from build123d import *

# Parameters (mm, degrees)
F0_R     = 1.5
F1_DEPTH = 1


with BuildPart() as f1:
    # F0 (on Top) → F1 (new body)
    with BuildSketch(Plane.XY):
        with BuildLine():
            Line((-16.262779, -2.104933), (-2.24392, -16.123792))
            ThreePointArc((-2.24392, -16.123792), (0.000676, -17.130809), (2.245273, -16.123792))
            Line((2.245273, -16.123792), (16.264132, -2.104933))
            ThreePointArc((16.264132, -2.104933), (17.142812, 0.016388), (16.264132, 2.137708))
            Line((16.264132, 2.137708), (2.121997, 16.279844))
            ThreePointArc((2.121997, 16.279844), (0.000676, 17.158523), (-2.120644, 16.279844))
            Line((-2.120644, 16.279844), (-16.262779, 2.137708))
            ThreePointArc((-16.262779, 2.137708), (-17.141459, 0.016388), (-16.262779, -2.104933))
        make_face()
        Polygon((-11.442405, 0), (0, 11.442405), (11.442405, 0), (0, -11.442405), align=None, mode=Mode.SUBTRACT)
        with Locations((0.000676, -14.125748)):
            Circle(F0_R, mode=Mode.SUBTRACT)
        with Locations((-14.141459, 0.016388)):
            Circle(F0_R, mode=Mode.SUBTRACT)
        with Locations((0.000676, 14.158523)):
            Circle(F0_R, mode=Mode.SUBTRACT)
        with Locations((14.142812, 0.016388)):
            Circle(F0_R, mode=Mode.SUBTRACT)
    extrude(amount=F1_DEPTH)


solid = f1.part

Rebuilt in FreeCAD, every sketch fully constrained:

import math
import FreeCAD as App
import Part
import Sketcher
from FreeCAD import Vector

doc = App.newDocument("Part")
body = doc.addObject("PartDesign::Body", "Body")

# Sketch on XY plane
sketch1 = body.newObject("Sketcher::SketchObject", "Sketch")
sketch1.AttachmentSupport = (doc.getObject("XY_Plane"), [""])
sketch1.MapMode = "FlatFace"
sketch1.addGeometry([
    Part.LineSegment(Vector(-16.262779, -2.104933, 0), Vector(-2.24392, -16.123792, 0)),  # 0
    Part.ArcOfCircle(Part.Circle(Vector(0.000677, -14.125747, 0), Vector(0, 0, 1), 3.005062), math.radians(-138.325876), math.radians(-41.674124)),  # 1
    Part.LineSegment(Vector(2.245273, -16.123792, 0), Vector(16.264132, -2.104933, 0)),  # 2
    Part.ArcOfCircle(Part.Circle(Vector(14.142812, 0.016387, 0), Vector(0, 0, 1), 3), math.radians(-45.000013), math.radians(45.000013)),  # 3
    Part.LineSegment(Vector(16.264132, 2.137708, 0), Vector(2.121997, 16.279844, 0)),  # 4
    Part.ArcOfCircle(Part.Circle(Vector(0.000677, 14.158521, 0), Vector(0, 0, 1), 3.000002), math.radians(45.000033), math.radians(134.999967)),  # 5
    Part.LineSegment(Vector(-2.120644, 16.279844, 0), Vector(-16.262779, 2.137708, 0)),  # 6
    Part.ArcOfCircle(Part.Circle(Vector(-14.141459, 0.016387, 0), Vector(0, 0, 1), 3), math.radians(134.999987), math.radians(225.000013)),  # 7
    Part.Circle(Vector(0.000676, -14.125748, 0), Vector(0, 0, 1), 1.5),  # 8
    Part.LineSegment(Vector(0, -11.442405, 0), Vector(-11.442405, 0, 0)),  # 9
    Part.LineSegment(Vector(-11.442405, 0, 0), Vector(0, 11.442405, 0)),  # 10
    Part.LineSegment(Vector(0, 11.442405, 0), Vector(11.442405, 0, 0)),  # 11
    Part.LineSegment(Vector(11.442405, 0, 0), Vector(0, -11.442405, 0)),  # 12
    Part.Circle(Vector(-14.141459, 0.016388, 0), Vector(0, 0, 1), 1.5),  # 13
    Part.Circle(Vector(0.000676, 14.158523, 0), Vector(0, 0, 1), 1.5),  # 14
    Part.Circle(Vector(14.142812, 0.016388, 0), Vector(0, 0, 1), 1.5),  # 15
], False)
sketch1.addConstraint([
    Sketcher.Constraint("Coincident", 0, 2, 1, 1),
    Sketcher.Constraint("Coincident", 1, 2, 2, 1),
    Sketcher.Constraint("Tangent", 2, 2, 3, 1),
    Sketcher.Constraint("Tangent", 3, 2, 4, 1),
    Sketcher.Constraint("Tangent", 4, 2, 5, 1),
    Sketcher.Constraint("Tangent", 5, 2, 6, 1),
    Sketcher.Constraint("Tangent", 6, 2, 7, 1),
    Sketcher.Constraint("Tangent", 7, 2, 0, 1),
    Sketcher.Constraint("Coincident", 9, 2, 10, 1),
    Sketcher.Constraint("Coincident", 10, 2, 11, 1),
    Sketcher.Constraint("Coincident", 11, 2, 12, 1),
    Sketcher.Constraint("Coincident", 12, 2, 9, 1),
    Sketcher.Constraint("Coincident", 8, 3, 1, 3),
    Sketcher.Constraint("Coincident", 13, 3, 7, 3),
    Sketcher.Constraint("Coincident", 14, 3, 5, 3),
    Sketcher.Constraint("Coincident", 15, 3, 3, 3),
    Sketcher.Constraint("Equal", 3, 7),
    Sketcher.Constraint("Equal", 8, 13),
    Sketcher.Constraint("Equal", 13, 14),
    Sketcher.Constraint("Equal", 14, 15),
    Sketcher.Constraint("Symmetric", 9, 2, 11, 2, -1, 1),
    Sketcher.Constraint("Symmetric", 10, 2, 12, 2, -1, 1),
    Sketcher.Constraint("PointOnObject", 9, 2, -1),
    Sketcher.Constraint("PointOnObject", 10, 2, -2),
    Sketcher.Constraint("Perpendicular", 0, 2),
    Sketcher.Constraint("Perpendicular", 2, 4),
    Sketcher.Constraint("Perpendicular", 4, 6),
    Sketcher.Constraint("Perpendicular", 6, 9),
    Sketcher.Constraint("Perpendicular", 9, 10),
    Sketcher.Constraint("Horizontal", 3, 3, 7, 3),
    Sketcher.Constraint("Horizontal", 0, 2, 1, 2),
    Sketcher.Constraint("Diameter", 8, 3.0),
    Sketcher.Constraint("Radius", 3, 3.0),
    Sketcher.Constraint("Radius", 5, 3.000002),
    Sketcher.Constraint("Distance", 4, 20.0),
    Sketcher.Constraint("Radius", 1, 3.005062),
    Sketcher.Constraint("Distance", 0, 19.825661),
    Sketcher.Constraint("DistanceY", -1, 1, 5, 3, 14.158521),
    Sketcher.Constraint("DistanceX", 7, 3, -1, 1, 14.141459),
    Sketcher.Constraint("DistanceX", 9, 2, 1, 3, 11.443082),
])
pad1 = body.newObject("PartDesign::Pad", "Pad")
pad1.Profile = sketch1
pad1.Length = 1

doc.recompute()
